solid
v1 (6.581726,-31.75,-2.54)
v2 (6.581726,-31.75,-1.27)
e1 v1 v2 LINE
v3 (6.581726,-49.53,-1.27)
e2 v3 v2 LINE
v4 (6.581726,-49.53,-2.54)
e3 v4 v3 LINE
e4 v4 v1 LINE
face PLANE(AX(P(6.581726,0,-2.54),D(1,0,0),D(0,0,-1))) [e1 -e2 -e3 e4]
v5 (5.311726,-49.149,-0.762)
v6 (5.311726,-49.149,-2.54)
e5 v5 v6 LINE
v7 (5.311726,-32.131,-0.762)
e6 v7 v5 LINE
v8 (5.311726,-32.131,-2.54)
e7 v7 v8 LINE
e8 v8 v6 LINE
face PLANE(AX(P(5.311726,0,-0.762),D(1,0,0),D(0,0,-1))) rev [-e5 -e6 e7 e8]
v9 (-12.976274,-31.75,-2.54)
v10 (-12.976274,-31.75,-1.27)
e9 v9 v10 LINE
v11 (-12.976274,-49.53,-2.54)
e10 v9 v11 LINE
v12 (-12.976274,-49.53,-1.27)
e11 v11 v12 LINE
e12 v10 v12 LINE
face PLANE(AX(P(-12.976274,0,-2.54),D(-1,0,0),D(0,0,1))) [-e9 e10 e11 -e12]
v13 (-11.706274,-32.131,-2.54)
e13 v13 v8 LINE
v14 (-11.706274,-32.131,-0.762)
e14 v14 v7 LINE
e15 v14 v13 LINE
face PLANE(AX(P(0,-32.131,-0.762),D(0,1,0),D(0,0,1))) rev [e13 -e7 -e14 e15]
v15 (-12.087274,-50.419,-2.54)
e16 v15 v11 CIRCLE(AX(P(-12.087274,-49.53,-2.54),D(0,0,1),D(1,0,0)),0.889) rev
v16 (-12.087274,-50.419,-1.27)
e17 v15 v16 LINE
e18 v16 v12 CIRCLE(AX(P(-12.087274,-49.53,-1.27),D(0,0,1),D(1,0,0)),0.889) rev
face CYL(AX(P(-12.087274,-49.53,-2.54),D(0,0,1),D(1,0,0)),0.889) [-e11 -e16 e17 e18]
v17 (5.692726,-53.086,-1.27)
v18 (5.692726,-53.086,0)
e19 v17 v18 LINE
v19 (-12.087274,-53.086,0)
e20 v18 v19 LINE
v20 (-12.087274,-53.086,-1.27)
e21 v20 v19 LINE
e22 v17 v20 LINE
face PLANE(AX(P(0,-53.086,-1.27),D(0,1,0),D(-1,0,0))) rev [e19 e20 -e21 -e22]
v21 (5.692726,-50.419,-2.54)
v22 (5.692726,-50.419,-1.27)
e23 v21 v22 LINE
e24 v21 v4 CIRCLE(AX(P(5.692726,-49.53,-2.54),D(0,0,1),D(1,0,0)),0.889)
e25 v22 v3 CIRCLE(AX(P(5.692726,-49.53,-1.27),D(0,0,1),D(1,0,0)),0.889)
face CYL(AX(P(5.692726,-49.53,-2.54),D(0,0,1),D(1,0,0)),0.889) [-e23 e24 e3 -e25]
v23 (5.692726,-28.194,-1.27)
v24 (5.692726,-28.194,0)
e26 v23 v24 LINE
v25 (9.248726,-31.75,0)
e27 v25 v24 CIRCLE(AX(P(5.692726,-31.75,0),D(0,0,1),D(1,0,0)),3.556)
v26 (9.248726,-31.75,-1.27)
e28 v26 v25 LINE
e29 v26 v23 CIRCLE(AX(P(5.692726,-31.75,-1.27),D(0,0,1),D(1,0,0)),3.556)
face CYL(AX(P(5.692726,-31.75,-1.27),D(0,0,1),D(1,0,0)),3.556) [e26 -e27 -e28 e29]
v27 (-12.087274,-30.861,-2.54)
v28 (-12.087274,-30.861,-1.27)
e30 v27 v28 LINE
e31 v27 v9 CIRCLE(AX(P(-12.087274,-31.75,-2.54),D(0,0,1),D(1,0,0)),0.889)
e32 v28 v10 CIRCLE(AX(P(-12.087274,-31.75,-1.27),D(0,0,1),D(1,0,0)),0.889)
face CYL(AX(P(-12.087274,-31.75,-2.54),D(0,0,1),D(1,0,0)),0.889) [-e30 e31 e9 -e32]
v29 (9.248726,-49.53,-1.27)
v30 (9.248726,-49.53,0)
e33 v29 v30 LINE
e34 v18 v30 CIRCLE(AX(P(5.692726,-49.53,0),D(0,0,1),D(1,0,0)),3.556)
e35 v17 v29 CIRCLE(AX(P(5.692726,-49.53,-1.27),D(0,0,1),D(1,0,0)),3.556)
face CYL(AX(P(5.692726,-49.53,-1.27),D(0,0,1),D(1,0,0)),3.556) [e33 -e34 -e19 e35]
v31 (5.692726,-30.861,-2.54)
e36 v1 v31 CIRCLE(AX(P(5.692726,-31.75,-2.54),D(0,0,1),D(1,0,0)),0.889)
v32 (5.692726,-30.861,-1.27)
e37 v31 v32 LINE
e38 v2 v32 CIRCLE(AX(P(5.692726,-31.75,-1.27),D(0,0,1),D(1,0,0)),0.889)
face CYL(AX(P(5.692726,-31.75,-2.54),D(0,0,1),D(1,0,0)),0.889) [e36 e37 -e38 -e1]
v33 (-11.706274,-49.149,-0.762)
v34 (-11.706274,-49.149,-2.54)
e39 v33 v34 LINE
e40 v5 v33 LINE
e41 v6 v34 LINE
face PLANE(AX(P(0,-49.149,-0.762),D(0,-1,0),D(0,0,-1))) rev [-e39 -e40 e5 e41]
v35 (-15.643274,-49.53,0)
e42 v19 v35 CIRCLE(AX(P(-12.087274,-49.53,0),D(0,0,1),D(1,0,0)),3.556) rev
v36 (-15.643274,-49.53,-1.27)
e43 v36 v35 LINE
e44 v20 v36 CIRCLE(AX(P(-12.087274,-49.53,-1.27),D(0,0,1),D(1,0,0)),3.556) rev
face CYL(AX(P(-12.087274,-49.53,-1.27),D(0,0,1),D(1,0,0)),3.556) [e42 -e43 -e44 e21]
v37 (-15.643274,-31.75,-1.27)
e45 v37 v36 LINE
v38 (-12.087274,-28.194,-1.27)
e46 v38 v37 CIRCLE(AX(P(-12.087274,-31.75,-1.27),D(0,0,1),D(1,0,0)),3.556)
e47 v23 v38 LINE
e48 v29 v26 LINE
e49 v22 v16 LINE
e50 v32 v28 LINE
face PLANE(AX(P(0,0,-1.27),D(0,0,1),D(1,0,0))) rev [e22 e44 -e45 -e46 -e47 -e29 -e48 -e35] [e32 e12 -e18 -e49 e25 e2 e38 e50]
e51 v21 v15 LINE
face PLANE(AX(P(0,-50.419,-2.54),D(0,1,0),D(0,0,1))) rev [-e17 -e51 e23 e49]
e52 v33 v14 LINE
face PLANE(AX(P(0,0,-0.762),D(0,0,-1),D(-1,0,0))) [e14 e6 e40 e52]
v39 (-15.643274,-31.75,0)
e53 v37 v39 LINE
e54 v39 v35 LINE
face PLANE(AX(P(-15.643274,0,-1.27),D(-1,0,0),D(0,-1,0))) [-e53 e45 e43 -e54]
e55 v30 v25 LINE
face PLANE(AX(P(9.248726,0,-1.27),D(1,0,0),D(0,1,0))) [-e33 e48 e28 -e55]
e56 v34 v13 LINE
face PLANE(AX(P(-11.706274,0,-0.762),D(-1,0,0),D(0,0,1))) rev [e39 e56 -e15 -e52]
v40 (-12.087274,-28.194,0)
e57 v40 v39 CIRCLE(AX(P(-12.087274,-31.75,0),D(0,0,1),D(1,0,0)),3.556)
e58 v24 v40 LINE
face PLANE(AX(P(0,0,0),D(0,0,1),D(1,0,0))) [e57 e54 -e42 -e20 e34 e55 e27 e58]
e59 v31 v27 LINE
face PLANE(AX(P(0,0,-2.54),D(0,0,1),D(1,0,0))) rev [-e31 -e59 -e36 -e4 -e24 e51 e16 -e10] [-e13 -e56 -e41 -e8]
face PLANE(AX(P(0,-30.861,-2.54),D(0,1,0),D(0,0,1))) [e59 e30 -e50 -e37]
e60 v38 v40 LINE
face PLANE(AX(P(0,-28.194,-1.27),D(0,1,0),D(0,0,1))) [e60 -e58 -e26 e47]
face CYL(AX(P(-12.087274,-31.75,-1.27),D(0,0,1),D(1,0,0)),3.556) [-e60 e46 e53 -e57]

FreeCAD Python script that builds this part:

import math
import FreeCAD as App
import Part
import Sketcher
from FreeCAD import Vector
Q = App.Units.Quantity

doc = App.newDocument("Part")
params = doc.addObject("Spreadsheet::Sheet", "Params")
for row, (alias, value) in enumerate([
    ("sketch1_radius", "0.14 in"),
    ("sketch1_width", "0.7 in"),
    ("sketch1_radius2", "0.035 in"),
    ("pad1_length", "0.05 in"),
    ("sketch2_width", "0.7 in"),
    ("sketch2_radius", "0.035 in"),
    ("pad2_length", "0.1 in"),
    ("sketch3_width", "0.67 in"),
    ("pocket1_length", "0.07 in"),
], start=1):
    params.set(f"A{row}", alias)
    params.set(f"B{row}", "=" + value)
    params.setAlias(f"B{row}", alias)

body = doc.addObject("PartDesign::Body", "Body")

sketch1 = body.newObject("Sketcher::SketchObject", "Sketch")
sketch1.AttachmentSupport = (doc.getObject("XY_Plane"), [""])
sketch1.MapMode = "FlatFace"
sketch1.addGeometry([
    Part.LineSegment(Vector(-12.1, -53.1, 0), Vector(5.7, -53.1, 0)),
    Part.ArcOfCircle(Part.Circle(Vector(5.7, -49.5, 0), Vector(0, 0, 1), 3.6), math.radians(-90), math.radians(0)),
    Part.LineSegment(Vector(9.2, -49.5, 0), Vector(9.2, -31.8, 0)),
    Part.ArcOfCircle(Part.Circle(Vector(5.7, -31.8, 0), Vector(0, 0, 1), 3.6), math.radians(0), math.radians(90)),
    Part.LineSegment(Vector(5.7, -28.2, 0), Vector(-12.1, -28.2, 0)),
    Part.ArcOfCircle(Part.Circle(Vector(-12.1, -31.8, 0), Vector(0, 0, 1), 3.6), math.radians(90), math.radians(180)),
    Part.LineSegment(Vector(-15.6, -31.8, 0), Vector(-15.6, -49.5, 0)),
    Part.ArcOfCircle(Part.Circle(Vector(-12.1, -49.5, 0), Vector(0, 0, 1), 3.6), math.radians(180), math.radians(270)),
    Part.LineSegment(Vector(5.7, -50.4, 0), Vector(-12.1, -50.4, 0)),
    Part.ArcOfCircle(Part.Circle(Vector(-12.1, -49.5, 0), Vector(0, 0, 1), 0.9), math.radians(180), math.radians(270)),
    Part.LineSegment(Vector(-13, -49.5, 0), Vector(-13, -31.8, 0)),
    Part.ArcOfCircle(Part.Circle(Vector(-12.1, -31.8, 0), Vector(0, 0, 1), 0.9), math.radians(90), math.radians(180)),
    Part.LineSegment(Vector(-12.1, -30.9, 0), Vector(5.7, -30.9, 0)),
    Part.ArcOfCircle(Part.Circle(Vector(5.7, -31.8, 0), Vector(0, 0, 1), 0.9), math.radians(0), math.radians(90)),
    Part.LineSegment(Vector(6.6, -31.8, 0), Vector(6.6, -49.5, 0)),
    Part.ArcOfCircle(Part.Circle(Vector(5.7, -49.5, 0), Vector(0, 0, 1), 0.9), math.radians(-90), math.radians(0)),
], False)
sketch1.addConstraint([
    Sketcher.Constraint("Tangent", 0, 2, 1, 1),
    Sketcher.Constraint("Tangent", 1, 2, 2, 1),
    Sketcher.Constraint("Tangent", 2, 2, 3, 1),
    Sketcher.Constraint("Tangent", 3, 2, 4, 1),
    Sketcher.Constraint("Tangent", 4, 2, 5, 1),
    Sketcher.Constraint("Tangent", 5, 2, 6, 1),
    Sketcher.Constraint("Tangent", 6, 2, 7, 1),
    Sketcher.Constraint("Tangent", 7, 2, 0, 1),
    Sketcher.Constraint("Tangent", 8, 2, 9, 2),
    Sketcher.Constraint("Tangent", 9, 1, 10, 1),
    Sketcher.Constraint("Tangent", 10, 2, 11, 2),
    Sketcher.Constraint("Tangent", 11, 1, 12, 1),
    Sketcher.Constraint("Tangent", 12, 2, 13, 2),
    Sketcher.Constraint("Tangent", 13, 1, 14, 1),
    Sketcher.Constraint("Tangent", 14, 2, 15, 2),
    Sketcher.Constraint("Tangent", 15, 1, 8, 1),
    Sketcher.Constraint("Horizontal", 0),
    Sketcher.Constraint("Vertical", 2),
    Sketcher.Constraint("Horizontal", 4),
    Sketcher.Constraint("Vertical", 6),
    Sketcher.Constraint("Horizontal", 8),
    Sketcher.Constraint("Vertical", 10),
    Sketcher.Constraint("Horizontal", 12),
    Sketcher.Constraint("Vertical", 14),
    Sketcher.Constraint("Coincident", 9, 3, 7, 3),
    Sketcher.Constraint("Coincident", 11, 3, 5, 3),
    Sketcher.Constraint("Coincident", 13, 3, 3, 3),
    Sketcher.Constraint("Equal", 1, 3),
    Sketcher.Constraint("Equal", 3, 5),
    Sketcher.Constraint("Equal", 5, 7),
    Sketcher.Constraint("Equal", 13, 15),
    Sketcher.Constraint("Equal", 12, 2),
    Sketcher.Constraint("Radius", 1, Q("0.14 in")),
    Sketcher.Constraint("DistanceX", 0, 1, 0, 2, Q("0.7 in")),
    Sketcher.Constraint("Radius", 9, Q("0.035 in")),
    Sketcher.Constraint("DistanceY", 1, 3, -1, 1, Q("1.95 in")),
    Sketcher.Constraint("DistanceX", -1, 1, 1, 3, 5.692726),
])
sketch1.setExpression("Constraints[32]", "Params.sketch1_radius")
sketch1.setExpression("Constraints[33]", "Params.sketch1_width")
sketch1.setExpression("Constraints[34]", "Params.sketch1_radius2")
pad1 = body.newObject("PartDesign::Pad", "Pad")
pad1.Profile = sketch1
pad1.setExpression("Length", "Params.pad1_length")
pad1.Reversed = True

sketch2 = body.newObject("Sketcher::SketchObject", "Sketch001")
sketch2.AttachmentSupport = (doc.getObject("XY_Plane"), [""])
sketch2.MapMode = "FlatFace"
sketch2.addGeometry([
    Part.LineSegment(Vector(-12.1, -50.4, 0), Vector(5.7, -50.4, 0)),
    Part.ArcOfCircle(Part.Circle(Vector(5.7, -49.5, 0), Vector(0, 0, 1), 0.9), math.radians(-90), math.radians(0)),
    Part.LineSegment(Vector(6.6, -49.5, 0), Vector(6.6, -31.8, 0)),
    Part.ArcOfCircle(Part.Circle(Vector(5.7, -31.8, 0), Vector(0, 0, 1), 0.9), math.radians(0), math.radians(90)),
    Part.LineSegment(Vector(5.7, -30.9, 0), Vector(-12.1, -30.9, 0)),
    Part.ArcOfCircle(Part.Circle(Vector(-12.1, -31.8, 0), Vector(0, 0, 1), 0.9), math.radians(90), math.radians(180)),
    Part.LineSegment(Vector(-13, -31.8, 0), Vector(-13, -49.5, 0)),
    Part.ArcOfCircle(Part.Circle(Vector(-12.1, -49.5, 0), Vector(0, 0, 1), 0.9), math.radians(180), math.radians(270)),
], False)
sketch2.addConstraint([
    Sketcher.Constraint("Tangent", 0, 2, 1, 1),
    Sketcher.Constraint("Tangent", 1, 2, 2, 1),
    Sketcher.Constraint("Tangent", 2, 2, 3, 1),
    Sketcher.Constraint("Tangent", 3, 2, 4, 1),
    Sketcher.Constraint("Tangent", 4, 2, 5, 1),
    Sketcher.Constraint("Tangent", 5, 2, 6, 1),
    Sketcher.Constraint("Tangent", 6, 2, 7, 1),
    Sketcher.Constraint("Tangent", 7, 2, 0, 1),
    Sketcher.Constraint("Horizontal", 0),
    Sketcher.Constraint("Vertical", 2),
    Sketcher.Constraint("Horizontal", 4),
    Sketcher.Constraint("Vertical", 6),
    Sketcher.Constraint("Equal", 1, 3),
    Sketcher.Constraint("Equal", 3, 5),
    Sketcher.Constraint("Equal", 5, 7),
    Sketcher.Constraint("Equal", 4, 2),
    Sketcher.Constraint("DistanceX", 0, 1, 0, 2, Q("0.7 in")),
    Sketcher.Constraint("Radius", 1, Q("0.035 in")),
    Sketcher.Constraint("DistanceY", 1, 3, -1, 1, Q("1.95 in")),
    Sketcher.Constraint("DistanceX", -1, 1, 1, 3, 5.692726),
])
sketch2.setExpression("Constraints[16]", "Params.sketch2_width")
sketch2.setExpression("Constraints[17]", "Params.sketch2_radius")
pad2 = body.newObject("PartDesign::Pad", "Pad001")
pad2.Profile = sketch2
pad2.setExpression("Length", "Params.pad2_length")
pad2.Reversed = True

sketch3 = body.newObject("Sketcher::SketchObject", "Sketch002")
sketch3.AttachmentSupport = (doc.getObject("XY_Plane"), [""])
sketch3.MapMode = "FlatFace"
sketch3.AttachmentOffset = App.Placement(Vector(0, 0, -0.1 * 25.4), App.Rotation())
sketch3.addGeometry([
    Part.LineSegment(Vector(5, -32, 0), Vector(5, -49, 0)),
    Part.LineSegment(Vector(5, -49, 0), Vector(-12, -49, 0)),
    Part.LineSegment(Vector(-12, -49, 0), Vector(-12, -32, 0)),
    Part.LineSegment(Vector(-12, -32, 0), Vector(5, -32, 0)),
], False)
sketch3.addConstraint([
    Sketcher.Constraint("Coincident", 0, 2, 1, 1),
    Sketcher.Constraint("Coincident", 1, 2, 2, 1),
    Sketcher.Constraint("Coincident", 2, 2, 3, 1),
    Sketcher.Constraint("Coincident", 3, 2, 0, 1),
    Sketcher.Constraint("Vertical", 0),
    Sketcher.Constraint("Horizontal", 1),
    Sketcher.Constraint("Vertical", 2),
    Sketcher.Constraint("Horizontal", 3),
    Sketcher.Constraint("Equal", 3, 0),
    Sketcher.Constraint("DistanceX", 1, 2, 1, 1, Q("0.67 in")),
    Sketcher.Constraint("DistanceY", 0, 2, -1, 1, Q("1.935 in")),
    Sketcher.Constraint("DistanceX", -1, 1, 0, 2, 5.311726),
])
sketch3.setExpression("Constraints[9]", "Params.sketch3_width")
pocket1 = body.newObject("PartDesign::Pocket", "Pocket")
pocket1.Profile = sketch3
pocket1.setExpression("Length", "Params.pocket1_length")
pocket1.Reversed = True

doc.recompute()
